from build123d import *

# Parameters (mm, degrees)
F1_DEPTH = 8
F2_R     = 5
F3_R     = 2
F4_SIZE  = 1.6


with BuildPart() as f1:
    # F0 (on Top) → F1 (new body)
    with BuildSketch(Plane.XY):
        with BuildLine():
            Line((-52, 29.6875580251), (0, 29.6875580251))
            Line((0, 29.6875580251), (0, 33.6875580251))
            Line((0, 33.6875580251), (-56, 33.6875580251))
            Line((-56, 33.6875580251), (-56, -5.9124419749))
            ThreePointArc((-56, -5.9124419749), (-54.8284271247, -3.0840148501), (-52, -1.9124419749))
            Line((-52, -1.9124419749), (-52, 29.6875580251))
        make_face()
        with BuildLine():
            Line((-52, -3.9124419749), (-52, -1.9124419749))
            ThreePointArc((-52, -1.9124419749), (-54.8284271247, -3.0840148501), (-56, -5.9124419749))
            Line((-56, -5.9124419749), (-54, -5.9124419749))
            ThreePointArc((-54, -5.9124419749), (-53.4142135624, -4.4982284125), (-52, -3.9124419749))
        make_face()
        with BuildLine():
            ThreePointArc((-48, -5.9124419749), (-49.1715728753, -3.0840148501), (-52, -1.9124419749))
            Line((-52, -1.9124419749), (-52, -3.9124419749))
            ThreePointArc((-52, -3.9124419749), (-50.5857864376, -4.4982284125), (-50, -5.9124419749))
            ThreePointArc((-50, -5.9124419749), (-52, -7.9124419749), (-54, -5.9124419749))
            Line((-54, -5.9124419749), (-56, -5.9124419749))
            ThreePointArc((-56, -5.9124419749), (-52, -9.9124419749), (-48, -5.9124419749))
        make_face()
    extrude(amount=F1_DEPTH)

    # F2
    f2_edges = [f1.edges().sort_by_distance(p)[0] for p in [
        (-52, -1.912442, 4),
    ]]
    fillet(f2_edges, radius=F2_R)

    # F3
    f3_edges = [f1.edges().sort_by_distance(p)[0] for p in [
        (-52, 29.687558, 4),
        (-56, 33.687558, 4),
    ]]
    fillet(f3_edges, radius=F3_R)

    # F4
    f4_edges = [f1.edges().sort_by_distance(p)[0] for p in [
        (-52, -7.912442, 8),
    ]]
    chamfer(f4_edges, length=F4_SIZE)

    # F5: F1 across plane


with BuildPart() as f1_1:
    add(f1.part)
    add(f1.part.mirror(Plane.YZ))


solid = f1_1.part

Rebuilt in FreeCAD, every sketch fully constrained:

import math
import FreeCAD as App
import Part
import Sketcher
from FreeCAD import Vector


def edges_at(feature, points):
    """Names of the edges that pass closest to the given points."""
    edges = feature.Shape.Edges
    near = lambda p: min(range(len(edges)), key=lambda i: edges[i].distToShape(Part.Vertex(*p))[0])
    return sorted({f"Edge{near(p) + 1}" for p in points})

doc = App.newDocument("Part")
body = doc.addObject("PartDesign::Body", "Body")

# Sketch on XY plane
sketch1 = body.newObject("Sketcher::SketchObject", "Sketch")
sketch1.AttachmentSupport = (doc.getObject("XY_Plane"), [""])
sketch1.MapMode = "FlatFace"
sketch1.addGeometry([
    Part.LineSegment(Vector(-52, 29.7, 0), Vector(0, 29.7, 0)),  # 0
    Part.LineSegment(Vector(0, 29.7, 0), Vector(0, 33.7, 0)),  # 1
    Part.LineSegment(Vector(0, 33.7, 0), Vector(-56, 33.7, 0)),  # 2
    Part.LineSegment(Vector(-56, 33.7, 0), Vector(-56, -5.9, 0)),  # 3
    Part.ArcOfCircle(Part.Circle(Vector(-52, -5.9, 0), Vector(0, 0, 1), 4), math.radians(180), math.radians(360)),  # 4
    Part.ArcOfCircle(Part.Circle(Vector(-52, -5.9, 0), Vector(0, 0, 1), 4), math.radians(0), math.radians(90)),  # 5
    Part.LineSegment(Vector(-52, -1.9, 0), Vector(-52, 29.7, 0)),  # 6
    Part.ArcOfCircle(Part.Circle(Vector(-52, -5.9, 0), Vector(0, 0, 1), 2), math.radians(90), math.radians(180)),  # 7
    Part.ArcOfCircle(Part.Circle(Vector(-52, -5.9, 0), Vector(0, 0, 1), 2), math.radians(0), math.radians(90)),  # 8
    Part.ArcOfCircle(Part.Circle(Vector(-52, -5.9, 0), Vector(0, 0, 1), 2), math.radians(180), math.radians(360)),  # 9
], False)
sketch1.addConstraint([
    Sketcher.Constraint("Coincident", 0, 2, 1, 1),
    Sketcher.Constraint("Coincident", 1, 2, 2, 1),
    Sketcher.Constraint("Coincident", 2, 2, 3, 1),
    Sketcher.Constraint("Tangent", 3, 2, 4, 1),
    Sketcher.Constraint("Tangent", 4, 2, 5, 1),
    Sketcher.Constraint("Coincident", 5, 2, 6, 1),
    Sketcher.Constraint("Coincident", 6, 2, 0, 1),
    Sketcher.Constraint("Tangent", 7, 1, 8, 2),
    Sketcher.Constraint("Tangent", 8, 1, 9, 2),
    Sketcher.Constraint("Tangent", 9, 1, 7, 2),
    Sketcher.Constraint("Horizontal", 0),
    Sketcher.Constraint("Vertical", 1),
    Sketcher.Constraint("Horizontal", 2),
    Sketcher.Constraint("Vertical", 3),
    Sketcher.Constraint("Vertical", 6),
    Sketcher.Constraint("Coincident", 7, 3, 4, 3),
    Sketcher.Constraint("Equal", 4, 5),
    Sketcher.Constraint("PointOnObject", 0, 2, -2),
    Sketcher.Constraint("Horizontal", 3, 2, 4, 2),
    Sketcher.Constraint("Horizontal", 4, 2, 8, 1),
    Sketcher.Constraint("Horizontal", 8, 1, 9, 1),
    Sketcher.Constraint("Vertical", 9, 3, 5, 2),
    Sketcher.Constraint("Vertical", 6, 2, 7, 1),
    Sketcher.Constraint("Radius", 4, 4.0),
    Sketcher.Constraint("Radius", 7, 2.0),
    Sketcher.Constraint("DistanceX", 0, 1, 0, 2, 52.0),
    Sketcher.Constraint("DistanceY", 1, 1, 1, 2, 4.0),
    Sketcher.Constraint("DistanceY", 3, 2, 3, 1, 39.6),
    Sketcher.Constraint("DistanceY", 4, 3, -1, 1, 5.912442),
])
pad1 = body.newObject("PartDesign::Pad", "Pad")
pad1.Profile = sketch1
pad1.Length = 8
doc.recompute()

fillet = body.newObject("PartDesign::Fillet", "Fillet")
fillet.Base = (pad1, edges_at(pad1, [(-52, -1.912, 4)]))
fillet.Radius = 5
doc.recompute()

fillet2 = body.newObject("PartDesign::Fillet", "Fillet001")
fillet2.Base = (fillet, edges_at(fillet, [(-52, 29.688, 4), (-56, 33.688, 4)]))
fillet2.Radius = 2
doc.recompute()

chamfer = body.newObject("PartDesign::Chamfer", "Chamfer")
chamfer.Base = (fillet2, edges_at(fillet2, [(-52, -7.912, 8)]))
chamfer.Size = 1.6
body2 = doc.addObject("PartDesign::Body", "Body001")
doc.recompute()

body2.BaseFeature = body
doc.recompute()

mirroring = doc.addObject("Part::Mirroring", "Mirroring")
mirroring.Source = body
mirroring.Base = Vector(0, 0, 0)
mirroring.Normal = Vector(1, 0, 0)
body3 = doc.addObject("PartDesign::Body", "Body002")
body3.BaseFeature = mirroring
boolean = body2.newObject("PartDesign::Boolean", "Boolean")
boolean.Type = "Fuse"
boolean.addObjects([body3])
doc.recompute()
mirroring.Visibility = False

doc.recompute()
